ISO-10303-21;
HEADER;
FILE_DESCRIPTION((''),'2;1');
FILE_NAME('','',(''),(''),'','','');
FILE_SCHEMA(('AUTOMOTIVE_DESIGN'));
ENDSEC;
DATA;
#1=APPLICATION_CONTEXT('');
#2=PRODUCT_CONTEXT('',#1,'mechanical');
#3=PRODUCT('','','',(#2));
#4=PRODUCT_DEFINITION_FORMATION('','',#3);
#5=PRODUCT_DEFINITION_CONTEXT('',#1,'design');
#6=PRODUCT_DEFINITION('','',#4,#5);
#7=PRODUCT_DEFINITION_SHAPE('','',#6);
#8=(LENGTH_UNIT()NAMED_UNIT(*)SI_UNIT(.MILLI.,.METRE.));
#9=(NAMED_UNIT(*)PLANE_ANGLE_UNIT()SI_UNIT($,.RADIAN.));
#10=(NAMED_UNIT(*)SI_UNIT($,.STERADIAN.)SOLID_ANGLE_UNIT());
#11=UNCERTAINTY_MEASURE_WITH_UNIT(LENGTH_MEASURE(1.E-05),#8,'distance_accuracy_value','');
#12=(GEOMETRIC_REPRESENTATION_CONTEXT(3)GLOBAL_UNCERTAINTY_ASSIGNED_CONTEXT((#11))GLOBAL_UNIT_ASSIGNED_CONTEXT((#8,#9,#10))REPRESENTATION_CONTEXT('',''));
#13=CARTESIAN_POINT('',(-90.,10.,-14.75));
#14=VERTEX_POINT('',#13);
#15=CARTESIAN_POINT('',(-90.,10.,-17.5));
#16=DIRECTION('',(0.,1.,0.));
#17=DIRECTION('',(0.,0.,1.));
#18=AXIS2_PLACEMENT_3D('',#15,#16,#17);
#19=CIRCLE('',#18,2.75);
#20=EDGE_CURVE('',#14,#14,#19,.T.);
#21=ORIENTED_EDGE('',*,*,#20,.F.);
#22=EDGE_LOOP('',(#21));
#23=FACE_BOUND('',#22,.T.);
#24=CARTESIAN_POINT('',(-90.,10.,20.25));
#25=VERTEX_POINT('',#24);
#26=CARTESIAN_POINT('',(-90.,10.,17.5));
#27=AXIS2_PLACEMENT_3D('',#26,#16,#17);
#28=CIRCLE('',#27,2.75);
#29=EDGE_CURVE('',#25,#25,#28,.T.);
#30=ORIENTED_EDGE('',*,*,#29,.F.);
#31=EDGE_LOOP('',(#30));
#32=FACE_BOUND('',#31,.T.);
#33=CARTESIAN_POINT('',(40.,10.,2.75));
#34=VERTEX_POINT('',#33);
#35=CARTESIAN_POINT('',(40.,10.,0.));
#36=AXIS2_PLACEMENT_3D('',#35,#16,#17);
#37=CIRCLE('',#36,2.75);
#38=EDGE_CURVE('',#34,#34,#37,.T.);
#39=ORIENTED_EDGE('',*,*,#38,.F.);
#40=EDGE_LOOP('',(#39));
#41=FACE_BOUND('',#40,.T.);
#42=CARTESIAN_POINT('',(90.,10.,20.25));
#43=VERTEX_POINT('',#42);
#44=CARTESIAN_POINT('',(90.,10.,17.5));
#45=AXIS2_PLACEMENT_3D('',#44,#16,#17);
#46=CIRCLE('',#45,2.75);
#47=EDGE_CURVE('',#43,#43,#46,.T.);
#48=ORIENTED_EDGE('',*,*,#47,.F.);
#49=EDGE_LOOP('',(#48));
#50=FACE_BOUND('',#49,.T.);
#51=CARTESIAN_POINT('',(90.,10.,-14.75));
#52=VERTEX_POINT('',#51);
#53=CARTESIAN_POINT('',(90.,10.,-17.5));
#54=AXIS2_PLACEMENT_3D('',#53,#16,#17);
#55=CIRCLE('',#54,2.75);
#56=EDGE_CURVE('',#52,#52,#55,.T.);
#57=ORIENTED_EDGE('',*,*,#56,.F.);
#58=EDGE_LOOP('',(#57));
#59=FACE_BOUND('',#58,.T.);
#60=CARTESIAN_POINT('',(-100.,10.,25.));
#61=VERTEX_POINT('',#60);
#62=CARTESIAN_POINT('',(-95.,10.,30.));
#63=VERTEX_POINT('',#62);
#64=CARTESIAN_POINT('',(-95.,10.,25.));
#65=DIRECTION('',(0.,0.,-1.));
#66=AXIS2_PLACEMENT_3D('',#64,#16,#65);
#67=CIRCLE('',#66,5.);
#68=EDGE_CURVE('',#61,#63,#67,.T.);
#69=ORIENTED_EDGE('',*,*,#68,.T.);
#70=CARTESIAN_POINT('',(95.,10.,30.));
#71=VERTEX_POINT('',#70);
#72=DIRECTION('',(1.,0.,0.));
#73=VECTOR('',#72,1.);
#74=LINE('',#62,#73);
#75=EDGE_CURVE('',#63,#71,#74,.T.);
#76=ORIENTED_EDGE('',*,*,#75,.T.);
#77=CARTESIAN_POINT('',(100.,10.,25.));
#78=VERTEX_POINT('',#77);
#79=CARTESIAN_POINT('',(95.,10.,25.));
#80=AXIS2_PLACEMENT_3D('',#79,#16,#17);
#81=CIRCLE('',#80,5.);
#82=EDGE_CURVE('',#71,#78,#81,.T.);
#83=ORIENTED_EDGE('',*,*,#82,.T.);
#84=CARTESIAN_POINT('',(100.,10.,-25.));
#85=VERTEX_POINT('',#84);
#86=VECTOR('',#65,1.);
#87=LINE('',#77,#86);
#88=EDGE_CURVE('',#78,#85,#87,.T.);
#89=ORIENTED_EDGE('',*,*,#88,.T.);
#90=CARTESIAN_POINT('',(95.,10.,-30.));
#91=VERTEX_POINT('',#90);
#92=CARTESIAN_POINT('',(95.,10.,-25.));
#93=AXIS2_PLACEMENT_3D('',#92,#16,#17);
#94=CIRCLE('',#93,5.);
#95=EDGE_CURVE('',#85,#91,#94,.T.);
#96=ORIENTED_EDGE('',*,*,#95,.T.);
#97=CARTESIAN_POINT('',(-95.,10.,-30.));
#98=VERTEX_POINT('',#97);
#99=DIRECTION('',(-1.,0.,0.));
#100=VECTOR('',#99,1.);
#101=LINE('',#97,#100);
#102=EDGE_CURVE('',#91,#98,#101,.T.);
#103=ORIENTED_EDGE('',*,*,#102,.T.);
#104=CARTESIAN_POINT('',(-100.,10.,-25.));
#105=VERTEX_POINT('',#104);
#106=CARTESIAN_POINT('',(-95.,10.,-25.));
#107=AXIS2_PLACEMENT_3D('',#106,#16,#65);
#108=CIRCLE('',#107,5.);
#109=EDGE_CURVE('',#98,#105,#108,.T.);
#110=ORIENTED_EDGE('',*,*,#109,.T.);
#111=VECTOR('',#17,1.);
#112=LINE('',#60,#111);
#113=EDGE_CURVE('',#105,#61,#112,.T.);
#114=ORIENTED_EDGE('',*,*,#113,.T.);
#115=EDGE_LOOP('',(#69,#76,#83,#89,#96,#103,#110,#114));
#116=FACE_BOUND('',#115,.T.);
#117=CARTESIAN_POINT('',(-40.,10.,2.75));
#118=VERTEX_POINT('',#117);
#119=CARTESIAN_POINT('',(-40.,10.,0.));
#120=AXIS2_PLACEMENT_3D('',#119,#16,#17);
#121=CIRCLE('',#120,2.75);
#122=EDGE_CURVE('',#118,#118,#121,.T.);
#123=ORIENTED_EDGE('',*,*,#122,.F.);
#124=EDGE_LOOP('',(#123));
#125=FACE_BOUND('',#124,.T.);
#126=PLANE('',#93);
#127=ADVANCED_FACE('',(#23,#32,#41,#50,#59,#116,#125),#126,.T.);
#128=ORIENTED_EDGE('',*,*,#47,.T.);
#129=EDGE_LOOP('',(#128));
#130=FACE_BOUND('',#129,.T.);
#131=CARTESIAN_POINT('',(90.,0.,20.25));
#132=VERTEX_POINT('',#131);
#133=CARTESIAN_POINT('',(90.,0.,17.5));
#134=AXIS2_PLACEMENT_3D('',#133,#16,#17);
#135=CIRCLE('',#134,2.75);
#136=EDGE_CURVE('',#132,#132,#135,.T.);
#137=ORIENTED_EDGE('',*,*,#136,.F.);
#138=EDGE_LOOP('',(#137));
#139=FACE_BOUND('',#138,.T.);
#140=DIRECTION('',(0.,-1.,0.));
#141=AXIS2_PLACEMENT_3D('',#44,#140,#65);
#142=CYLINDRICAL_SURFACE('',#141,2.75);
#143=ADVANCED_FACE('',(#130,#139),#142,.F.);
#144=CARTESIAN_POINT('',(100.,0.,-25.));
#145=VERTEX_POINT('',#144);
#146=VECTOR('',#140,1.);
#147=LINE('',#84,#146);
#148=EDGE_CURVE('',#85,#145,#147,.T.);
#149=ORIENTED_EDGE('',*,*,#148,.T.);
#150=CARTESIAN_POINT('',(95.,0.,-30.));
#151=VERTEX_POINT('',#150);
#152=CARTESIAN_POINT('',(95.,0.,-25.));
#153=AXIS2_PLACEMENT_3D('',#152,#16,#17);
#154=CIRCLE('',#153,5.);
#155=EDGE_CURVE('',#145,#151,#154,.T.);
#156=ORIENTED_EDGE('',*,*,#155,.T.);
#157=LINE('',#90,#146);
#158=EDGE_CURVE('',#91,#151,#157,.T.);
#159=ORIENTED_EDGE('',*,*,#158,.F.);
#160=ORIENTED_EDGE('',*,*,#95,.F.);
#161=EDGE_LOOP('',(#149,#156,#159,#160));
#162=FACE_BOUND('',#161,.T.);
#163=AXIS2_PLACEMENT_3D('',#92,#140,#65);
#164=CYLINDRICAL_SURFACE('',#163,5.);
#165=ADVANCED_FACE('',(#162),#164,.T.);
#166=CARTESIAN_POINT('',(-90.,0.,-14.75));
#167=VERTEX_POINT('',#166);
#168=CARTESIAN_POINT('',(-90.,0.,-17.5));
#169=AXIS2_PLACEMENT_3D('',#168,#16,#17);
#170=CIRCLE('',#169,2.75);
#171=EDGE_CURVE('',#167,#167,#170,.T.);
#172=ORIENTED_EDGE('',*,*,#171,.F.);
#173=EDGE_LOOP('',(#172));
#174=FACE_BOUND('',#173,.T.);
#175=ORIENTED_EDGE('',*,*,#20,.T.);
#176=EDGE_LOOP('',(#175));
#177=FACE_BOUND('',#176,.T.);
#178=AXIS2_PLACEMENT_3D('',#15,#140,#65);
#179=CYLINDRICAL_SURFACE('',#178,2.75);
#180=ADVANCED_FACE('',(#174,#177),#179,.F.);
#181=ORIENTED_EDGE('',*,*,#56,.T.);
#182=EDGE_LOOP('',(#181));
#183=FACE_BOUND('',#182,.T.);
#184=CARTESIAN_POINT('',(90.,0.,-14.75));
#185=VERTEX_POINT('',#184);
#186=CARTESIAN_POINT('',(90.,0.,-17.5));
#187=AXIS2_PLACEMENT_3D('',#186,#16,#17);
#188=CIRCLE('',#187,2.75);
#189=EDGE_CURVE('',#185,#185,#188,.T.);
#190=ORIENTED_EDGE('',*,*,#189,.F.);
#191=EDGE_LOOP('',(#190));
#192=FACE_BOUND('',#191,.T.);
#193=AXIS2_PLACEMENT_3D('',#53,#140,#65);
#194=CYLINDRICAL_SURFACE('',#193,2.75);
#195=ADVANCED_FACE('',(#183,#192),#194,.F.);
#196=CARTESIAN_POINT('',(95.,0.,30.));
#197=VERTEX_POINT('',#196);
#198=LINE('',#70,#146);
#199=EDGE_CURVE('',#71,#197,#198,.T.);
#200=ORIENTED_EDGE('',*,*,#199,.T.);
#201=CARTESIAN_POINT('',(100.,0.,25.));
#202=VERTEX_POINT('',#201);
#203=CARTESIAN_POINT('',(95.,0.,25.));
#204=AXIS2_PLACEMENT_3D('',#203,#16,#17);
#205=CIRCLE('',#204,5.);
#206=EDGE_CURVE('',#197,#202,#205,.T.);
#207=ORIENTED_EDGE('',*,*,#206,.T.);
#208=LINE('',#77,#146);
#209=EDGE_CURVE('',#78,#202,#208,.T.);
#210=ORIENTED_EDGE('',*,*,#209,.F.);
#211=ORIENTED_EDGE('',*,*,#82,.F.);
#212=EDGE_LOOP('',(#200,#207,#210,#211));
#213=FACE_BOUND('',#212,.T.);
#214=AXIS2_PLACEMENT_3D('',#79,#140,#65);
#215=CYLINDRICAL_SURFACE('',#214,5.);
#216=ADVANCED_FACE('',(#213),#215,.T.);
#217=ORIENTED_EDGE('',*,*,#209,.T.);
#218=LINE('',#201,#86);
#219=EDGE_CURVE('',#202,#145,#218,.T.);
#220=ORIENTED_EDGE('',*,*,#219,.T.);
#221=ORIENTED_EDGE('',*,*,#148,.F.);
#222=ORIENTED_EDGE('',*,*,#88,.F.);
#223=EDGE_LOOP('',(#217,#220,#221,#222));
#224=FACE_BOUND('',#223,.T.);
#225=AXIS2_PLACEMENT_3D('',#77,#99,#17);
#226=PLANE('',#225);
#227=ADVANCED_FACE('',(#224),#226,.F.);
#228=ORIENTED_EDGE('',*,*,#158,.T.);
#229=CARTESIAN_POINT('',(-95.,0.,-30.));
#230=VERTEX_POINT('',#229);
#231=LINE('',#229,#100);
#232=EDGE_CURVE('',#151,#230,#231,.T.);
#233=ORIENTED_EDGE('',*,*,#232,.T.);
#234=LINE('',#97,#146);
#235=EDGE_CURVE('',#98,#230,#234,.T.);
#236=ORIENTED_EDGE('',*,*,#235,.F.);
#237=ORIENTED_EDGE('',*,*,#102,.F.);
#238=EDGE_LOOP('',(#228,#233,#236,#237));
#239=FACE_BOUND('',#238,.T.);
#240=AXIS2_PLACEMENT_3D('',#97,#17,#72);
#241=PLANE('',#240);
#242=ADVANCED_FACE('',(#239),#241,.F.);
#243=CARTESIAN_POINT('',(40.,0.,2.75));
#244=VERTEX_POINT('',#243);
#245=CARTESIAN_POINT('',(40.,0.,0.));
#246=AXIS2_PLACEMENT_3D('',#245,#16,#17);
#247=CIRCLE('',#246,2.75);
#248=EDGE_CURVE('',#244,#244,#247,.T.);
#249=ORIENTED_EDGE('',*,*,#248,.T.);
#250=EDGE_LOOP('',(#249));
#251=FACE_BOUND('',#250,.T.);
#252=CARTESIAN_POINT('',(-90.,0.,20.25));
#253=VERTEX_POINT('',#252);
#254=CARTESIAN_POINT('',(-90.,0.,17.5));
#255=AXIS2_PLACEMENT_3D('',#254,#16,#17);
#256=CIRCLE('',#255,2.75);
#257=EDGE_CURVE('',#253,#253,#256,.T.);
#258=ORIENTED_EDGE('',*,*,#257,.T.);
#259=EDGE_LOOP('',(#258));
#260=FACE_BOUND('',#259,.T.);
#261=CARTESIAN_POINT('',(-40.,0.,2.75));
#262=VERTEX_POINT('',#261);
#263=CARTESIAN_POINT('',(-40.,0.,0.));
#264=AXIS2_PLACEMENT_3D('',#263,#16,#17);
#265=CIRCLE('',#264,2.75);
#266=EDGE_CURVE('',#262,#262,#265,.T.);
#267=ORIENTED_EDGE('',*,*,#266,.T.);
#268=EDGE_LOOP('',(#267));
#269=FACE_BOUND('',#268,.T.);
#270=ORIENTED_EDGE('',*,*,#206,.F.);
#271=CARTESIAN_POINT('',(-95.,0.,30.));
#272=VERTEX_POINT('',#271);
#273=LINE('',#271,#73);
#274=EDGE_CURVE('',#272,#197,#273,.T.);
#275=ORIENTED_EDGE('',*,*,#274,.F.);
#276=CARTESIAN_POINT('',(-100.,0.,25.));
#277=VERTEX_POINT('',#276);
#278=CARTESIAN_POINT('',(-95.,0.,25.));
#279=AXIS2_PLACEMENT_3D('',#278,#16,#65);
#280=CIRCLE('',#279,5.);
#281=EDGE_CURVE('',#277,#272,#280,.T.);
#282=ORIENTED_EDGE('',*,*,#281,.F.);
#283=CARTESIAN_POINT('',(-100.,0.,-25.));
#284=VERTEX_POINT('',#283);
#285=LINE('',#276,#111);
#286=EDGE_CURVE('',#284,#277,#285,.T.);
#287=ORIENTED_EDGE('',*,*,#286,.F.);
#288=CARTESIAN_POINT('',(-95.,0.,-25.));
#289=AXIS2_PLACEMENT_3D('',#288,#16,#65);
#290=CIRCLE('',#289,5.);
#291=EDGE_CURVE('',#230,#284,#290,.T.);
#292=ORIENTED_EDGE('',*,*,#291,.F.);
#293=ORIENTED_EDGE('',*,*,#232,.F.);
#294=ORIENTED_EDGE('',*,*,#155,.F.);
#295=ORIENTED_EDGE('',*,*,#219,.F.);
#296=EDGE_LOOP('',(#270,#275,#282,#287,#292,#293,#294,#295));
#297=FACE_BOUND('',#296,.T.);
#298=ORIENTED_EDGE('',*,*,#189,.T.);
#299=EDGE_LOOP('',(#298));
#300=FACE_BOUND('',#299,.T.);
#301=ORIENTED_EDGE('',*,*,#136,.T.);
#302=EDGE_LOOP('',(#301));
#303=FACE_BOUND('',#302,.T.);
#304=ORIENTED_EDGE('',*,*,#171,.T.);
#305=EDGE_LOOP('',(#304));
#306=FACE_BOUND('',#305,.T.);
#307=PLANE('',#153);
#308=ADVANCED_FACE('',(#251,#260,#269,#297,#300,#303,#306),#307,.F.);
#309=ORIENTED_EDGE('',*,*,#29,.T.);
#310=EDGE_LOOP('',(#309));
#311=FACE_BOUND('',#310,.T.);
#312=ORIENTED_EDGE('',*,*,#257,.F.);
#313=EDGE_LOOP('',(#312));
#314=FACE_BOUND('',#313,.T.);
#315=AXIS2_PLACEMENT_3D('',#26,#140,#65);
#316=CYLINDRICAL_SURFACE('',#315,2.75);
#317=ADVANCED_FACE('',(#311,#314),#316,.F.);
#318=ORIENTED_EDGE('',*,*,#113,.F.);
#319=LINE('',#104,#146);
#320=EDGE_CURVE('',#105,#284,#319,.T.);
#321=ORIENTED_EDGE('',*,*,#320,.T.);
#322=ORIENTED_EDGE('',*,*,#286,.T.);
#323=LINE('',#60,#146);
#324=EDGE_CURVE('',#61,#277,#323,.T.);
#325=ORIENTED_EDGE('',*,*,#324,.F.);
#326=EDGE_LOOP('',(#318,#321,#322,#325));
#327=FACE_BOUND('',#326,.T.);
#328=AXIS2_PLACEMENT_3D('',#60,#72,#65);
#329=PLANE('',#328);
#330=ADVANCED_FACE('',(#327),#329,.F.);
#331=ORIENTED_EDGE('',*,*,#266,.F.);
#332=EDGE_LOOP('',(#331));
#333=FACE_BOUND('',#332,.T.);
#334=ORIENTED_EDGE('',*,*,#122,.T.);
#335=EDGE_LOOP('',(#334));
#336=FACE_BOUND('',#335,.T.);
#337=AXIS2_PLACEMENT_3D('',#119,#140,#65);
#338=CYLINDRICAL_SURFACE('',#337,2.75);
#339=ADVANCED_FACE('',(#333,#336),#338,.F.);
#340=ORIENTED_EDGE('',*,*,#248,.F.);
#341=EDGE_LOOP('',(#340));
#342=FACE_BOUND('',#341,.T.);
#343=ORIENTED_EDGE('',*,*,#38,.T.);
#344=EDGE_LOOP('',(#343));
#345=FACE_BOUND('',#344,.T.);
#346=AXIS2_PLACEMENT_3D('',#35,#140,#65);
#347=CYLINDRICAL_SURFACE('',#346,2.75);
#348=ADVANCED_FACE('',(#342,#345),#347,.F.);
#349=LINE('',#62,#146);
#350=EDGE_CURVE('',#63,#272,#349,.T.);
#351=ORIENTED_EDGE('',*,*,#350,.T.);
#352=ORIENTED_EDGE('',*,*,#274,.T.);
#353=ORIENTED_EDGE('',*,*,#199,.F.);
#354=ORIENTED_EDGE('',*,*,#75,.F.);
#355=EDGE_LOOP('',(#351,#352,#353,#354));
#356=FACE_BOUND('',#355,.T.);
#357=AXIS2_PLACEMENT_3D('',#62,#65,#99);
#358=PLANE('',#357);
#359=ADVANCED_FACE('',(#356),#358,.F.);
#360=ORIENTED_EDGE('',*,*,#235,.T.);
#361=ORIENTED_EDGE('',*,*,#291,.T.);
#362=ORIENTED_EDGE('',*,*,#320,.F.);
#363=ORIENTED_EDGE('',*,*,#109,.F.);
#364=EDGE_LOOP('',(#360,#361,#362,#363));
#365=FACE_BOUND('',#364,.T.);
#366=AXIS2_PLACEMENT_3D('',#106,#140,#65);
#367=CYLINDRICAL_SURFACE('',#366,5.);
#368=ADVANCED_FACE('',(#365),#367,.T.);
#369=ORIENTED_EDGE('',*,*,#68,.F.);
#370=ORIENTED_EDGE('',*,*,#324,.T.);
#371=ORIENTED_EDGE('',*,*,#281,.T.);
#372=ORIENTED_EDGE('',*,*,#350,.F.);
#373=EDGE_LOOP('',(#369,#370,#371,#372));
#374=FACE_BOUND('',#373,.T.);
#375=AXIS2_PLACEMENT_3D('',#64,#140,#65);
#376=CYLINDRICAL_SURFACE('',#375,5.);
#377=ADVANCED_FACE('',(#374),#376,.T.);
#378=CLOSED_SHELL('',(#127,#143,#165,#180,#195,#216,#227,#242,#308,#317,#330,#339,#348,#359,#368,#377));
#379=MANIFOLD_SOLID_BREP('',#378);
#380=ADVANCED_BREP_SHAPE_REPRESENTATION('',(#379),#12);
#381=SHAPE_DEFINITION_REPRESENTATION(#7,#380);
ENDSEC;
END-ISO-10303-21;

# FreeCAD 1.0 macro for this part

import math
import FreeCAD as App
import Part
import Sketcher
from FreeCAD import Vector

doc = App.newDocument("Part")
body = doc.addObject("PartDesign::Body", "Body")

sketch1 = body.newObject("Sketcher::SketchObject", "Sketch")
sketch1.AttachmentSupport = (doc.getObject("XZ_Plane"), [""])
sketch1.MapMode = "FlatFace"
sketch1.addGeometry([
    Part.LineSegment(Vector(-95, 30, 0), Vector(95, 30, 0)),
    Part.ArcOfCircle(Part.Circle(Vector(95, 25, 0), Vector(0, 0, 1), 5), math.radians(0), math.radians(90)),
    Part.LineSegment(Vector(100, 25, 0), Vector(100, -25, 0)),
    Part.ArcOfCircle(Part.Circle(Vector(95, -25, 0), Vector(0, 0, 1), 5), math.radians(-90), math.radians(0)),
    Part.LineSegment(Vector(95, -30, 0), Vector(-95, -30, 0)),
    Part.ArcOfCircle(Part.Circle(Vector(-95, -25, 0), Vector(0, 0, 1), 5), math.radians(180), math.radians(270)),
    Part.LineSegment(Vector(-100, -25, 0), Vector(-100, 25, 0)),
    Part.ArcOfCircle(Part.Circle(Vector(-95, 25, 0), Vector(0, 0, 1), 5), math.radians(90), math.radians(180)),
    Part.Circle(Vector(-90, 17.5, 0), Vector(0, 0, 1), 2.75),
    Part.Circle(Vector(90, 17.5, 0), Vector(0, 0, 1), 2.75),
    Part.Circle(Vector(-40, 0, 0), Vector(0, 0, 1), 2.75),
    Part.Circle(Vector(-90, -17.5, 0), Vector(0, 0, 1), 2.75),
    Part.Circle(Vector(40, 0, 0), Vector(0, 0, 1), 2.75),
    Part.Circle(Vector(90, -17.5, 0), Vector(0, 0, 1), 2.75),
], False)
sketch1.addConstraint([
    Sketcher.Constraint("Tangent", 0, 2, 1, 2),
    Sketcher.Constraint("Tangent", 1, 1, 2, 1),
    Sketcher.Constraint("Tangent", 2, 2, 3, 2),
    Sketcher.Constraint("Tangent", 3, 1, 4, 1),
    Sketcher.Constraint("Tangent", 4, 2, 5, 2),
    Sketcher.Constraint("Tangent", 5, 1, 6, 1),
    Sketcher.Constraint("Tangent", 6, 2, 7, 2),
    Sketcher.Constraint("Tangent", 7, 1, 0, 1),
    Sketcher.Constraint("Horizontal", 0),
    Sketcher.Constraint("Vertical", 2),
    Sketcher.Constraint("Horizontal", 4),
    Sketcher.Constraint("Vertical", 6),
    Sketcher.Constraint("Equal", 1, 3),
    Sketcher.Constraint("Equal", 3, 5),
    Sketcher.Constraint("Equal", 5, 7),
    Sketcher.Constraint("Equal", 8, 9),
    Sketcher.Constraint("Equal", 9, 10),
    Sketcher.Constraint("Equal", 10, 11),
    Sketcher.Constraint("Equal", 11, 12),
    Sketcher.Constraint("Equal", 12, 13),
    Sketcher.Constraint("Symmetric", 1, 3, 5, 3, -1, 1),
    Sketcher.Constraint("Symmetric", 9, 3, 11, 3, -1, 1),
    Sketcher.Constraint("Symmetric", 10, 3, 12, 3, -1, 1),
    Sketcher.Constraint("Symmetric", 8, 3, 13, 3, -1, 1),
    Sketcher.Constraint("Symmetric", 8, 3, 9, 3, -2),
    Sketcher.Constraint("PointOnObject", 10, 3, -1),
    Sketcher.Constraint("Radius", 1, 5.0),
    Sketcher.Constraint("Diameter", 8, 5.5),
    Sketcher.Constraint("DistanceX", 0, 1, 0, 2, 190.0),
    Sketcher.Constraint("DistanceY", 2, 2, 2, 1, 50.0),
    Sketcher.Constraint("DistanceX", 8, 3, -1, 1, 90.0),
    Sketcher.Constraint("DistanceX", 10, 3, -1, 1, 40.0),
    Sketcher.Constraint("DistanceY", 11, 3, 8, 3, 35.0),
])
pad1 = body.newObject("PartDesign::Pad", "Pad")
pad1.Profile = sketch1
pad1.Length = 10
pad1.Reversed = True

doc.recompute()
